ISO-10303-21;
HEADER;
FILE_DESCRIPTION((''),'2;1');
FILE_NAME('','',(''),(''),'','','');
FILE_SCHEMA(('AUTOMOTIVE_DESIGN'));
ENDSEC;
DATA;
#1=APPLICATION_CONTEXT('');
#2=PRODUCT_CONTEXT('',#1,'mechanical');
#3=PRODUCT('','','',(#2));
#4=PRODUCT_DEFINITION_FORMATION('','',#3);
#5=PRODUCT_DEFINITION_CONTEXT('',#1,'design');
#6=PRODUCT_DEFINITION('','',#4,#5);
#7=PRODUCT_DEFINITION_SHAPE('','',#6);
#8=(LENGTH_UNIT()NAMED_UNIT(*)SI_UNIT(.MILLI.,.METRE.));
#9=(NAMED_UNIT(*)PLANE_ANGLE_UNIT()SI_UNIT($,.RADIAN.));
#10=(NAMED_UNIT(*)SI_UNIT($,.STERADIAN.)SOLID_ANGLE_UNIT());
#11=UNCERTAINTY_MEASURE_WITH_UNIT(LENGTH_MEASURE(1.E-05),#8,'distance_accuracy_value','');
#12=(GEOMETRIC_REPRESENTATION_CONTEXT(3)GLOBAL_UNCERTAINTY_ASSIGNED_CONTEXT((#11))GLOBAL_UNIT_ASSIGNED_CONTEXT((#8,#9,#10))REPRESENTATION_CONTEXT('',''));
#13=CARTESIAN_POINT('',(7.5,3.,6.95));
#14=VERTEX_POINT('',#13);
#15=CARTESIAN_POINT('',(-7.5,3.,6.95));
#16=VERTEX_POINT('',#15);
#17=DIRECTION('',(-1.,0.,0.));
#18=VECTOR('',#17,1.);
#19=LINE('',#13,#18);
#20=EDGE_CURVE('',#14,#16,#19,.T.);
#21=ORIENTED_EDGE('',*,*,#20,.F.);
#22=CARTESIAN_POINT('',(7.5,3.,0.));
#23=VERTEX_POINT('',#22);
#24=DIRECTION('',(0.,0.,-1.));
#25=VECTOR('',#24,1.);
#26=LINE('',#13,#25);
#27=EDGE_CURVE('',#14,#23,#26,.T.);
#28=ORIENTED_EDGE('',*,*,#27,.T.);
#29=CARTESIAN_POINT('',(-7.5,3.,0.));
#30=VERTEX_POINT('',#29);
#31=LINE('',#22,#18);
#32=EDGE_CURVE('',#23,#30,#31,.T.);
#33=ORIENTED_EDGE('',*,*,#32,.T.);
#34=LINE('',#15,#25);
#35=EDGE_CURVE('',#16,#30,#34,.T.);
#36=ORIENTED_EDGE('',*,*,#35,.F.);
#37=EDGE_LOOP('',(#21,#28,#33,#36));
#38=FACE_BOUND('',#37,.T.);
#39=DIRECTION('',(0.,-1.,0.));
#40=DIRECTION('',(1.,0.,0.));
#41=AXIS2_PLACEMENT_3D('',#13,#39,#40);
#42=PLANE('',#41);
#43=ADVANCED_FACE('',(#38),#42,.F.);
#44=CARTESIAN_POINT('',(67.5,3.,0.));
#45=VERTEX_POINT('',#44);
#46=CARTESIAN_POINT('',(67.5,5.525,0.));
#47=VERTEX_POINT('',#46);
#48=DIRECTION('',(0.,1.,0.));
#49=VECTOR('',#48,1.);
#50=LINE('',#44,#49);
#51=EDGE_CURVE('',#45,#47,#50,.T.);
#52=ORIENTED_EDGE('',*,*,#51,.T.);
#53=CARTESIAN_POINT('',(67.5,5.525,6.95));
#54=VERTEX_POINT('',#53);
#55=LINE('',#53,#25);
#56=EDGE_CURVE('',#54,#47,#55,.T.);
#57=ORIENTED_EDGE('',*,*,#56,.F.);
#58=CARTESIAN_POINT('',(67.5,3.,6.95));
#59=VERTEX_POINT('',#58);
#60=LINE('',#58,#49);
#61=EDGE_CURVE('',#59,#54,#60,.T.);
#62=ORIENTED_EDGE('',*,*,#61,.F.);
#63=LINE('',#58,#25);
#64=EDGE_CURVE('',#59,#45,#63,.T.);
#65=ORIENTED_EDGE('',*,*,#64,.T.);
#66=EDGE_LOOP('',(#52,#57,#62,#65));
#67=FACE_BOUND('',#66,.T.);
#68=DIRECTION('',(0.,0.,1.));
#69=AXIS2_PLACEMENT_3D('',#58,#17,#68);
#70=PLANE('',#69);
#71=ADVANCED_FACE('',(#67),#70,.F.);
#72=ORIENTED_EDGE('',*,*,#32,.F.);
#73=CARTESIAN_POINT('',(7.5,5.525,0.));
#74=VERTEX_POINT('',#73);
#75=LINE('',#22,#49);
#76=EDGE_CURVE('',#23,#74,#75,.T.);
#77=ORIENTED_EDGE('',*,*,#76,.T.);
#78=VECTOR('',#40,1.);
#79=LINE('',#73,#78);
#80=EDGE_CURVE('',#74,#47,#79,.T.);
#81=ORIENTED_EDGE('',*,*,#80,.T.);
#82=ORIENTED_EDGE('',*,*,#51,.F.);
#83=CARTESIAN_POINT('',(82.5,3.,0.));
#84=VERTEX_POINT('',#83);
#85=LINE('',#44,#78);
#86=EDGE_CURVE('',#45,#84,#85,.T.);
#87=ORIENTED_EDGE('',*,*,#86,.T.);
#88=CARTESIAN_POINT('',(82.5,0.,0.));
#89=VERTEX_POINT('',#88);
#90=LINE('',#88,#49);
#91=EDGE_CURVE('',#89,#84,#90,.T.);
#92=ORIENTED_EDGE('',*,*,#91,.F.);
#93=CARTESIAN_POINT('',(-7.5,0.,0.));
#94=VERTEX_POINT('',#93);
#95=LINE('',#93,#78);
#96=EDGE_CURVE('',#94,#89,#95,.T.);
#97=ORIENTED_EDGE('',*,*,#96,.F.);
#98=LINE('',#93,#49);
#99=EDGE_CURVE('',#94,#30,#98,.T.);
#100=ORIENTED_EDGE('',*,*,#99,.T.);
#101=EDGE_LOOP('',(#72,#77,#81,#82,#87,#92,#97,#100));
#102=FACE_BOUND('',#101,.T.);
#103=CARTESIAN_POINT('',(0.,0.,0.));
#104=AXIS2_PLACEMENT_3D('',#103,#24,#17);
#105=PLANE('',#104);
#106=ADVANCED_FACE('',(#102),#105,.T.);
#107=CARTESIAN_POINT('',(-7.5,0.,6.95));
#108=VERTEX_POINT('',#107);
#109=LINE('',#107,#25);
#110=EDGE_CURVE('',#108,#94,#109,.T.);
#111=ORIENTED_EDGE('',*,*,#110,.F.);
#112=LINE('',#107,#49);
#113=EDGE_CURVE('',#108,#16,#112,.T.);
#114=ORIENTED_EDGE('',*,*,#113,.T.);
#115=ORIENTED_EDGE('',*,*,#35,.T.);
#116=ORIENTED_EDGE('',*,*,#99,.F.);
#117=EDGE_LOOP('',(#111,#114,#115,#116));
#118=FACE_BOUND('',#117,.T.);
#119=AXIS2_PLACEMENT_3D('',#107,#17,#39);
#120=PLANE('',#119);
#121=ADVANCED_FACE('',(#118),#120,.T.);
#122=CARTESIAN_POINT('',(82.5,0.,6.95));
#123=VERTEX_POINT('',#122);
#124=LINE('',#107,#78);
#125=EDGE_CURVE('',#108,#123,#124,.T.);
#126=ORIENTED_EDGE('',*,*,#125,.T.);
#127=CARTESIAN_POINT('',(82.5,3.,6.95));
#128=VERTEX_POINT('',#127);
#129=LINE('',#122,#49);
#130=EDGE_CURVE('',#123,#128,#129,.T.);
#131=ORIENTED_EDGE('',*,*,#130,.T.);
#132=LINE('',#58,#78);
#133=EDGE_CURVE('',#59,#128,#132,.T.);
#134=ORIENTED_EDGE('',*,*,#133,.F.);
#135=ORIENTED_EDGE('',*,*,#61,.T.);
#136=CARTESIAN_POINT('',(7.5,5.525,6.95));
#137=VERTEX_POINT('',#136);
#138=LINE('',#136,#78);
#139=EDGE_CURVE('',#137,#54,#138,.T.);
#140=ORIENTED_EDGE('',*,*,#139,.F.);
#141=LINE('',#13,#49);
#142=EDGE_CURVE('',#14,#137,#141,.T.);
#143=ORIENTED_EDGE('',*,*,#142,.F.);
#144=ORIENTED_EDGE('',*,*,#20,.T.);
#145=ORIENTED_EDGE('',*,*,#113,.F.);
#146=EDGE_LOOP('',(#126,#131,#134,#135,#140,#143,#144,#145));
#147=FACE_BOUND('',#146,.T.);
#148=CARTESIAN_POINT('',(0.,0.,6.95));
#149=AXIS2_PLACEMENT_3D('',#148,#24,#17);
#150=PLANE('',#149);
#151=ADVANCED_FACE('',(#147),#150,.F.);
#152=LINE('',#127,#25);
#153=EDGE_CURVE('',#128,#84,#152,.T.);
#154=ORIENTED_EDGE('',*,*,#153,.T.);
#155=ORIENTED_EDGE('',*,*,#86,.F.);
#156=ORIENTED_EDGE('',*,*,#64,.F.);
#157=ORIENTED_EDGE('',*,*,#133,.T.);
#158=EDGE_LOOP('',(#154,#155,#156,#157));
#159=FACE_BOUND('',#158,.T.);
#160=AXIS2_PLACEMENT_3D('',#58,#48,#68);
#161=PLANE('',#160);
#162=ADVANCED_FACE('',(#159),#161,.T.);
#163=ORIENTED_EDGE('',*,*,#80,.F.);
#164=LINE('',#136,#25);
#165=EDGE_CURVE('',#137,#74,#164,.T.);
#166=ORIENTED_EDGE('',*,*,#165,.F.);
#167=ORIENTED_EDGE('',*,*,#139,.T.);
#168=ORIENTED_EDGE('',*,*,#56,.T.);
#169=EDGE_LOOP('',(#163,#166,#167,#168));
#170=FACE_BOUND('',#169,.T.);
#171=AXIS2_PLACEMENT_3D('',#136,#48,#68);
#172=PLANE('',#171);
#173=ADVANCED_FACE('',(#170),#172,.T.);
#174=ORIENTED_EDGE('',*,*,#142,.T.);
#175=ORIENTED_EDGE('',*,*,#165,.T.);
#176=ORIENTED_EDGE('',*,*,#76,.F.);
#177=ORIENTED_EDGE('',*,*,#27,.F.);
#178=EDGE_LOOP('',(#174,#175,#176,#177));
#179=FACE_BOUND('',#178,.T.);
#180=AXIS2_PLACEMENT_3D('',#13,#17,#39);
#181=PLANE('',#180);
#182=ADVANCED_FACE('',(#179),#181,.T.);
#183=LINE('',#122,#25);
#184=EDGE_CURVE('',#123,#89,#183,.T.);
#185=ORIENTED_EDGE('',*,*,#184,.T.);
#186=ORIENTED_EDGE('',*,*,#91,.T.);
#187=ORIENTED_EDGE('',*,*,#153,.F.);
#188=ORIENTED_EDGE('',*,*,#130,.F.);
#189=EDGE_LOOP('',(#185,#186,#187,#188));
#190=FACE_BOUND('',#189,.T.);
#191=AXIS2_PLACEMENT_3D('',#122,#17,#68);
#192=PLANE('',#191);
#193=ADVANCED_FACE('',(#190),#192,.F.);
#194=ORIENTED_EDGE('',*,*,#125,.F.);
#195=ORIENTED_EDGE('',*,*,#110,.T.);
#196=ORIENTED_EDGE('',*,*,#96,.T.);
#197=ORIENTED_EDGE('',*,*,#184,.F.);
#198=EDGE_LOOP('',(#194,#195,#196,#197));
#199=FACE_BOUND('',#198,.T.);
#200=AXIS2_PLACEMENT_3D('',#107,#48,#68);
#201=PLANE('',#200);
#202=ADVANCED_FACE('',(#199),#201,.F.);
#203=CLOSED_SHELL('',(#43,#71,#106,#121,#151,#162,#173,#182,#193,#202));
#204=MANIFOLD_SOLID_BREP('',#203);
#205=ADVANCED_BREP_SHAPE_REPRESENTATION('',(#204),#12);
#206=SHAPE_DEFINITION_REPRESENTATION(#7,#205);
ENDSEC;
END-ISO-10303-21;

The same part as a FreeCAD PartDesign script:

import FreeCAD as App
import Part
import Sketcher


def add_polygon(sketch, points):
    """Adds a closed chain of lines whose ends are joined by coincident constraints."""
    first, n = sketch.GeometryCount, len(points)
    for a, b in zip(points, points[1:] + points[:1]):
        sketch.addGeometry(Part.LineSegment(App.Vector(*a, 0), App.Vector(*b, 0)), False)
    for i in range(n):
        sketch.addConstraint(Sketcher.Constraint("Coincident", first + i, 2, first + (i + 1) % n, 1))

doc = App.newDocument("Part")
params = doc.addObject("Spreadsheet::Sheet", "Params")
for row, (alias, value) in enumerate([
    ("sketch1_width", "90 mm"),
    ("sketch1_width2", "15 mm"),
    ("sketch1_height", "3 mm"),
    ("pad1_length", "6.95 mm"),
], start=1):
    params.set(f"A{row}", alias)
    params.set(f"B{row}", "=" + value)
    params.setAlias(f"B{row}", alias)

body = doc.addObject("PartDesign::Body", "Body")

# Sketch on XY plane
sketch1 = body.newObject("Sketcher::SketchObject", "Sketch")
sketch1.AttachmentSupport = (doc.getObject("XY_Plane"), [""])
sketch1.MapMode = "FlatFace"
add_polygon(sketch1, [(-7.5, 0), (82.5, 0), (82.5, 3), (67.5, 3), (67.5, 5.5), (7.5, 5.5), (7.5, 3), (-7.5, 3)])  # lines 0-7
sketch1.addConstraint([
    Sketcher.Constraint("Horizontal", 0),
    Sketcher.Constraint("Vertical", 1),
    Sketcher.Constraint("Horizontal", 2),
    Sketcher.Constraint("Vertical", 3),
    Sketcher.Constraint("Horizontal", 4),
    Sketcher.Constraint("Vertical", 5),
    Sketcher.Constraint("Horizontal", 6),
    Sketcher.Constraint("Vertical", 7),
    Sketcher.Constraint("PointOnObject", 0, 2, -1),
    Sketcher.Constraint("Horizontal", 2, 2, 5, 2),
    Sketcher.Constraint("Equal", 2, 6),
    Sketcher.Constraint("DistanceX", 0, 1, 0, 2, 90.0),
    Sketcher.Constraint("DistanceX", 2, 2, 2, 1, 15.0),
    Sketcher.Constraint("DistanceY", 1, 1, 1, 2, 3.0),
    Sketcher.Constraint("DistanceX", -1, 1, 0, 2, 82.5),
    Sketcher.Constraint("DistanceY", 3, 1, 3, 2, 2.525),
])
sketch1.setExpression("Constraints[19]", "Params.sketch1_width")
sketch1.setExpression("Constraints[20]", "Params.sketch1_width2")
sketch1.setExpression("Constraints[21]", "Params.sketch1_height")
pad1 = body.newObject("PartDesign::Pad", "Pad")
pad1.Profile = sketch1
pad1.setExpression("Length", "Params.pad1_length")

doc.recompute()
